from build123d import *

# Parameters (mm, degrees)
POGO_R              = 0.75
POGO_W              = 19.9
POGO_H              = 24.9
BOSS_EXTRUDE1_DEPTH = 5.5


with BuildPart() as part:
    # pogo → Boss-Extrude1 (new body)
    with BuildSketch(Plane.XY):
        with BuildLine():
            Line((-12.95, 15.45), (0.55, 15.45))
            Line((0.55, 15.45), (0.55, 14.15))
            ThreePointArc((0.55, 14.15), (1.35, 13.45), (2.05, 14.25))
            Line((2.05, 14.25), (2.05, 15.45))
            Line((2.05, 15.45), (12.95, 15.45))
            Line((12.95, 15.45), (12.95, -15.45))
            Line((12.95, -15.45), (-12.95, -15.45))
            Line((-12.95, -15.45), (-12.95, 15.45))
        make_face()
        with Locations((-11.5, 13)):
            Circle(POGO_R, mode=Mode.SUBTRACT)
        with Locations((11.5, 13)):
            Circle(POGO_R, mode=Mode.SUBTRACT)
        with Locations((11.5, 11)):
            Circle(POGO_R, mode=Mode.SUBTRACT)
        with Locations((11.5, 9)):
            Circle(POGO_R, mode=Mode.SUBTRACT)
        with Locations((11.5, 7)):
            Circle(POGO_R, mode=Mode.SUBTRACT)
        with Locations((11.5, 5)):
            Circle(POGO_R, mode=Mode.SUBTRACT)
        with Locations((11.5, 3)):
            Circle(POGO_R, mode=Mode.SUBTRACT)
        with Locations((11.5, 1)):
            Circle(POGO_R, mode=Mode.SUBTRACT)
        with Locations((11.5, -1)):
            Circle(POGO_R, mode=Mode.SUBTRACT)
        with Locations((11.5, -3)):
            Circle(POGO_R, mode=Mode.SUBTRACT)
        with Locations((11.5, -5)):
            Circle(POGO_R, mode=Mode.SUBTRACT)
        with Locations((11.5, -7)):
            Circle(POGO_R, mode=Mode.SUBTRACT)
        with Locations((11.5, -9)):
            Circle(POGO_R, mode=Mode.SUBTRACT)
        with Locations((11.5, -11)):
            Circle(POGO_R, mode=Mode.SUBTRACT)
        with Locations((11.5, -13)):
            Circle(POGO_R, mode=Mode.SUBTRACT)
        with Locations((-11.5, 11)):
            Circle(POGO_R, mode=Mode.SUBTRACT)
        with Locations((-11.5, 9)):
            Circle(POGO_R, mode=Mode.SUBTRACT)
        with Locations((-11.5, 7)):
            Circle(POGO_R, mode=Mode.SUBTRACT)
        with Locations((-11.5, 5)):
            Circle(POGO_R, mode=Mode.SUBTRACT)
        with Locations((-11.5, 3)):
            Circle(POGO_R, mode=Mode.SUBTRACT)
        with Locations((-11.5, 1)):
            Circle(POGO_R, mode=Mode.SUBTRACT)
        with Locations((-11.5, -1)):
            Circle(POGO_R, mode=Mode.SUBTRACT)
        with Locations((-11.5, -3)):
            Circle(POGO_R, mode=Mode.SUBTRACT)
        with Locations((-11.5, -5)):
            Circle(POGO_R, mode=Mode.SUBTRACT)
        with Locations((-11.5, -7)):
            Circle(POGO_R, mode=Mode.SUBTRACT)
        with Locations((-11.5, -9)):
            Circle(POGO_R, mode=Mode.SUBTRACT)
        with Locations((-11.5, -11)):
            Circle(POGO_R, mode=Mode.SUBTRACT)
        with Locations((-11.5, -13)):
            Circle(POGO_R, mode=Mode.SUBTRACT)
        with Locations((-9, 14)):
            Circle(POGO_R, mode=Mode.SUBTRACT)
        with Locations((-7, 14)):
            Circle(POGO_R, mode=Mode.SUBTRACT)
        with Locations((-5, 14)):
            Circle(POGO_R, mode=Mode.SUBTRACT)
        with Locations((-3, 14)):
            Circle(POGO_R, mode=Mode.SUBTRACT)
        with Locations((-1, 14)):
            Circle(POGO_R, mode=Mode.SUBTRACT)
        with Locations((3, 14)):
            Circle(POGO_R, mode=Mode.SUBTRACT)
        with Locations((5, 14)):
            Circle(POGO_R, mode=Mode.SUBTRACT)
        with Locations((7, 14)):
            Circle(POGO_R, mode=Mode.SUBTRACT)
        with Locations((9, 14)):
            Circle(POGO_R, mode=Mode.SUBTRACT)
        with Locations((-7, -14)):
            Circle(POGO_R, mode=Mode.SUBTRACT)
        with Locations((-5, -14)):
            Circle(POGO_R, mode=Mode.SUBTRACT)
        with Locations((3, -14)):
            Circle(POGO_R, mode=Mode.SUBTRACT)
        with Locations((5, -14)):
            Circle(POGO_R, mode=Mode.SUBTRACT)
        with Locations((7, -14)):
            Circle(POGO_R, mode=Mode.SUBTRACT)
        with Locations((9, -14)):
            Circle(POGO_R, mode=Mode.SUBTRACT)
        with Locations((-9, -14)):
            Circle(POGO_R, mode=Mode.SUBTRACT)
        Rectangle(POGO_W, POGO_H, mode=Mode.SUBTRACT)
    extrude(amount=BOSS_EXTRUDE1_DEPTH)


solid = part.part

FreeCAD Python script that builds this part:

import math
import FreeCAD as App
import Part
import Sketcher
from FreeCAD import Vector
Q = App.Units.Quantity


def add_polygon(sketch, points):
    """Adds a closed chain of lines whose ends are joined by coincident constraints."""
    first, n = sketch.GeometryCount, len(points)
    for a, b in zip(points, points[1:] + points[:1]):
        sketch.addGeometry(Part.LineSegment(App.Vector(*a, 0), App.Vector(*b, 0)), False)
    for i in range(n):
        sketch.addConstraint(Sketcher.Constraint("Coincident", first + i, 2, first + (i + 1) % n, 1))

doc = App.newDocument("Part")
body = doc.addObject("PartDesign::Body", "Body")

sketch1 = doc.addObject("Sketcher::SketchObject", "Sketch")
body.addObject(sketch1)
sketch1.AttachmentSupport = (doc.XY_Plane, [""])
sketch1.MapMode = "FlatFace"
sketch1.addGeometry(Part.LineSegment(Vector(0.55, 15.45, 0), Vector(-12.95, 15.45, 0)), False)
sketch1.addGeometry(Part.LineSegment(Vector(-12.95, 15.45, 0), Vector(-12.95, -15.45, 0)), False)
sketch1.addGeometry(Part.LineSegment(Vector(-12.95, -15.45, 0), Vector(12.95, -15.45, 0)), False)
sketch1.addGeometry(Part.LineSegment(Vector(12.95, -15.45, 0), Vector(12.95, 15.45, 0)), False)
sketch1.addGeometry(Part.LineSegment(Vector(12.95, 15.45, 0), Vector(2.05, 15.45, 0)), False)
sketch1.addGeometry(Part.LineSegment(Vector(2.05, 15.45, 0), Vector(2.05, 14.25, 0)), False)
sketch1.addGeometry(Part.ArcOfCircle(Part.Circle(Vector(1.3, 14.2, 0), Vector(0, 0, 1), 0.751665), math.radians(-176.185925), math.radians(3.814075)), False)
sketch1.addGeometry(Part.LineSegment(Vector(0.55, 14.15, 0), Vector(0.55, 15.45, 0)), False)
sketch1.addGeometry(Part.Circle(Vector(11.5, -13, 0), Vector(0, 0, 1), 0.75), False)
sketch1.addGeometry(Part.Circle(Vector(9, -14, 0), Vector(0, 0, 1), 0.75), False)
sketch1.addGeometry(Part.Circle(Vector(7, -14, 0), Vector(0, 0, 1), 0.75), False)
sketch1.addGeometry(Part.Circle(Vector(11.5, -11, 0), Vector(0, 0, 1), 0.75), False)
sketch1.addGeometry(Part.Circle(Vector(11.5, -9, 0), Vector(0, 0, 1), 0.75), False)
sketch1.addGeometry(Part.Circle(Vector(5, -14, 0), Vector(0, 0, 1), 0.75), False)
sketch1.addGeometry(Part.Circle(Vector(3, -14, 0), Vector(0, 0, 1), 0.75), False)
sketch1.addGeometry(Part.Circle(Vector(11.5, -7, 0), Vector(0, 0, 1), 0.75), False)
sketch1.addGeometry(Part.Circle(Vector(11.5, -5, 0), Vector(0, 0, 1), 0.75), False)
sketch1.addGeometry(Part.Circle(Vector(11.5, -3, 0), Vector(0, 0, 1), 0.75), False)
sketch1.addGeometry(Part.Circle(Vector(11.5, -1, 0), Vector(0, 0, 1), 0.75), False)
sketch1.addGeometry(Part.Circle(Vector(-5, -14, 0), Vector(0, 0, 1), 0.75), False)
sketch1.addGeometry(Part.Circle(Vector(-7, -14, 0), Vector(0, 0, 1), 0.75), False)
sketch1.addGeometry(Part.Circle(Vector(-9, -14, 0), Vector(0, 0, 1), 0.75), False)
sketch1.addGeometry(Part.Circle(Vector(-11.5, -13, 0), Vector(0, 0, 1), 0.75), False)
sketch1.addGeometry(Part.Circle(Vector(-11.5, -11, 0), Vector(0, 0, 1), 0.75), False)
sketch1.addGeometry(Part.Circle(Vector(-11.5, -9, 0), Vector(0, 0, 1), 0.75), False)
sketch1.addGeometry(Part.Circle(Vector(-11.5, -7, 0), Vector(0, 0, 1), 0.75), False)
sketch1.addGeometry(Part.Circle(Vector(-11.5, -5, 0), Vector(0, 0, 1), 0.75), False)
sketch1.addGeometry(Part.Circle(Vector(-11.5, -3, 0), Vector(0, 0, 1), 0.75), False)
sketch1.addGeometry(Part.Circle(Vector(-11.5, -1, 0), Vector(0, 0, 1), 0.75), False)
sketch1.addGeometry(Part.Circle(Vector(11.5, 1, 0), Vector(0, 0, 1), 0.75), False)
sketch1.addGeometry(Part.Circle(Vector(11.5, 3, 0), Vector(0, 0, 1), 0.75), False)
sketch1.addGeometry(Part.Circle(Vector(11.5, 5, 0), Vector(0, 0, 1), 0.75), False)
sketch1.addGeometry(Part.Circle(Vector(11.5, 7, 0), Vector(0, 0, 1), 0.75), False)
add_polygon(sketch1, [(-9.95, -12.45), (-9.95, 12.45), (9.95, 12.45), (9.95, -12.45)])
sketch1.addGeometry(Part.Circle(Vector(11.5, 9, 0), Vector(0, 0, 1), 0.75), False)
sketch1.addGeometry(Part.Circle(Vector(11.5, 11, 0), Vector(0, 0, 1), 0.75), False)
sketch1.addGeometry(Part.Circle(Vector(11.5, 13, 0), Vector(0, 0, 1), 0.75), False)
sketch1.addGeometry(Part.Circle(Vector(9, 14, 0), Vector(0, 0, 1), 0.75), False)
sketch1.addGeometry(Part.Circle(Vector(7, 14, 0), Vector(0, 0, 1), 0.75), False)
sketch1.addGeometry(Part.Circle(Vector(5, 14, 0), Vector(0, 0, 1), 0.75), False)
sketch1.addGeometry(Part.Circle(Vector(3, 14, 0), Vector(0, 0, 1), 0.75), False)
sketch1.addGeometry(Part.Circle(Vector(-11.5, 1, 0), Vector(0, 0, 1), 0.75), False)
sketch1.addGeometry(Part.Circle(Vector(-11.5, 3, 0), Vector(0, 0, 1), 0.75), False)
sketch1.addGeometry(Part.Circle(Vector(-11.5, 5, 0), Vector(0, 0, 1), 0.75), False)
sketch1.addGeometry(Part.Circle(Vector(-11.5, 7, 0), Vector(0, 0, 1), 0.75), False)
sketch1.addGeometry(Part.Circle(Vector(-1, 14, 0), Vector(0, 0, 1), 0.75), False)
sketch1.addGeometry(Part.Circle(Vector(-3, 14, 0), Vector(0, 0, 1), 0.75), False)
sketch1.addGeometry(Part.Circle(Vector(-5, 14, 0), Vector(0, 0, 1), 0.75), False)
sketch1.addGeometry(Part.Circle(Vector(-11.5, 9, 0), Vector(0, 0, 1), 0.75), False)
sketch1.addGeometry(Part.Circle(Vector(-11.5, 11, 0), Vector(0, 0, 1), 0.75), False)
sketch1.addGeometry(Part.Circle(Vector(-7, 14, 0), Vector(0, 0, 1), 0.75), False)
sketch1.addGeometry(Part.Circle(Vector(-9, 14, 0), Vector(0, 0, 1), 0.75), False)
sketch1.addGeometry(Part.Circle(Vector(-11.5, 13, 0), Vector(0, 0, 1), 0.75), False)
sketch1.addConstraint(Sketcher.Constraint("Coincident", 0, 2, 1, 1))
sketch1.addConstraint(Sketcher.Constraint("Coincident", 1, 2, 2, 1))
sketch1.addConstraint(Sketcher.Constraint("Coincident", 2, 2, 3, 1))
sketch1.addConstraint(Sketcher.Constraint("Coincident", 3, 2, 4, 1))
sketch1.addConstraint(Sketcher.Constraint("Coincident", 4, 2, 5, 1))
sketch1.addConstraint(Sketcher.Constraint("Coincident", 5, 2, 6, 2))
sketch1.addConstraint(Sketcher.Constraint("Coincident", 6, 1, 7, 1))
sketch1.addConstraint(Sketcher.Constraint("Coincident", 7, 2, 0, 1))
sketch1.addConstraint(Sketcher.Constraint("Horizontal", 0))
sketch1.addConstraint(Sketcher.Constraint("Vertical", 1))
sketch1.addConstraint(Sketcher.Constraint("Horizontal", 2))
sketch1.addConstraint(Sketcher.Constraint("Vertical", 3))
sketch1.addConstraint(Sketcher.Constraint("Horizontal", 4))
sketch1.addConstraint(Sketcher.Constraint("Vertical", 5))
sketch1.addConstraint(Sketcher.Constraint("Vertical", 7))
sketch1.addConstraint(Sketcher.Constraint("Vertical", 33))
sketch1.addConstraint(Sketcher.Constraint("Horizontal", 34))
sketch1.addConstraint(Sketcher.Constraint("Vertical", 35))
sketch1.addConstraint(Sketcher.Constraint("Horizontal", 36))
sketch1.addConstraint(Sketcher.Constraint("Equal", 8, 9))
sketch1.addConstraint(Sketcher.Constraint("Equal", 9, 10))
sketch1.addConstraint(Sketcher.Constraint("Equal", 10, 11))
sketch1.addConstraint(Sketcher.Constraint("Equal", 11, 12))
sketch1.addConstraint(Sketcher.Constraint("Equal", 12, 13))
sketch1.addConstraint(Sketcher.Constraint("Equal", 13, 14))
sketch1.addConstraint(Sketcher.Constraint("Equal", 14, 15))
sketch1.addConstraint(Sketcher.Constraint("Equal", 15, 16))
sketch1.addConstraint(Sketcher.Constraint("Equal", 16, 17))
sketch1.addConstraint(Sketcher.Constraint("Equal", 17, 18))
sketch1.addConstraint(Sketcher.Constraint("Equal", 18, 19))
sketch1.addConstraint(Sketcher.Constraint("Equal", 19, 20))
sketch1.addConstraint(Sketcher.Constraint("Equal", 20, 21))
sketch1.addConstraint(Sketcher.Constraint("Equal", 21, 22))
sketch1.addConstraint(Sketcher.Constraint("Equal", 22, 23))
sketch1.addConstraint(Sketcher.Constraint("Equal", 23, 24))
sketch1.addConstraint(Sketcher.Constraint("Equal", 24, 25))
sketch1.addConstraint(Sketcher.Constraint("Equal", 25, 26))
sketch1.addConstraint(Sketcher.Constraint("Equal", 26, 27))
sketch1.addConstraint(Sketcher.Constraint("Equal", 27, 28))
sketch1.addConstraint(Sketcher.Constraint("Equal", 28, 29))
sketch1.addConstraint(Sketcher.Constraint("Equal", 29, 30))
sketch1.addConstraint(Sketcher.Constraint("Equal", 30, 31))
sketch1.addConstraint(Sketcher.Constraint("Equal", 31, 32))
sketch1.addConstraint(Sketcher.Constraint("Equal", 32, 37))
sketch1.addConstraint(Sketcher.Constraint("Equal", 37, 38))
sketch1.addConstraint(Sketcher.Constraint("Equal", 38, 39))
sketch1.addConstraint(Sketcher.Constraint("Equal", 39, 40))
sketch1.addConstraint(Sketcher.Constraint("Equal", 40, 41))
sketch1.addConstraint(Sketcher.Constraint("Equal", 41, 42))
sketch1.addConstraint(Sketcher.Constraint("Equal", 42, 43))
sketch1.addConstraint(Sketcher.Constraint("Equal", 43, 44))
sketch1.addConstraint(Sketcher.Constraint("Equal", 44, 45))
sketch1.addConstraint(Sketcher.Constraint("Equal", 45, 46))
sketch1.addConstraint(Sketcher.Constraint("Equal", 46, 47))
sketch1.addConstraint(Sketcher.Constraint("Equal", 47, 48))
sketch1.addConstraint(Sketcher.Constraint("Equal", 48, 49))
sketch1.addConstraint(Sketcher.Constraint("Equal", 49, 50))
sketch1.addConstraint(Sketcher.Constraint("Equal", 50, 51))
sketch1.addConstraint(Sketcher.Constraint("Equal", 51, 52))
sketch1.addConstraint(Sketcher.Constraint("Equal", 52, 53))
sketch1.addConstraint(Sketcher.Constraint("Equal", 53, 54))
sketch1.addConstraint(Sketcher.Constraint("Equal", 54, 55))
sketch1.addConstraint(Sketcher.Constraint("Symmetric", 28, 3, 29, 3, -1, 1))
sketch1.addConstraint(Sketcher.Constraint("Symmetric", 27, 3, 30, 3, -1, 1))
sketch1.addConstraint(Sketcher.Constraint("Symmetric", 26, 3, 31, 3, -1, 1))
sketch1.addConstraint(Sketcher.Constraint("Symmetric", 25, 3, 32, 3, -1, 1))
sketch1.addConstraint(Sketcher.Constraint("Symmetric", 24, 3, 37, 3, -1, 1))
sketch1.addConstraint(Sketcher.Constraint("Symmetric", 23, 3, 38, 3, -1, 1))
sketch1.addConstraint(Sketcher.Constraint("Symmetric", 22, 3, 39, 3, -1, 1))
sketch1.addConstraint(Sketcher.Constraint("Symmetric", 21, 3, 40, 3, -1, 1))
sketch1.addConstraint(Sketcher.Constraint("Symmetric", 20, 3, 41, 3, -1, 1))
sketch1.addConstraint(Sketcher.Constraint("Symmetric", 19, 3, 42, 3, -1, 1))
sketch1.addConstraint(Sketcher.Constraint("Symmetric", 18, 3, 44, 3, -1, 1))
sketch1.addConstraint(Sketcher.Constraint("Symmetric", 17, 3, 45, 3, -1, 1))
sketch1.addConstraint(Sketcher.Constraint("Symmetric", 16, 3, 46, 3, -1, 1))
sketch1.addConstraint(Sketcher.Constraint("Symmetric", 15, 3, 47, 3, -1, 1))
sketch1.addConstraint(Sketcher.Constraint("Symmetric", 14, 3, 49, 3, -1, 1))
sketch1.addConstraint(Sketcher.Constraint("Symmetric", 13, 3, 50, 3, -1, 1))
sketch1.addConstraint(Sketcher.Constraint("Symmetric", 12, 3, 51, 3, -1, 1))
sketch1.addConstraint(Sketcher.Constraint("Symmetric", 11, 3, 52, 3, -1, 1))
sketch1.addConstraint(Sketcher.Constraint("Symmetric", 10, 3, 53, 3, -1, 1))
sketch1.addConstraint(Sketcher.Constraint("Symmetric", 9, 3, 54, 3, -1, 1))
sketch1.addConstraint(Sketcher.Constraint("Symmetric", 8, 3, 55, 3, -1, 1))
sketch1.addConstraint(Sketcher.Constraint("Symmetric", 0, 2, 2, 2, -1, 1))
sketch1.addConstraint(Sketcher.Constraint("Symmetric", 33, 2, 35, 2, -1, 1))
sketch1.addConstraint(Sketcher.Constraint("Symmetric", 13, 3, 19, 3, -2))
sketch1.addConstraint(Sketcher.Constraint("Symmetric", 10, 3, 20, 3, -2))
sketch1.addConstraint(Sketcher.Constraint("Symmetric", 9, 3, 21, 3, -2))
sketch1.addConstraint(Sketcher.Constraint("Symmetric", 8, 3, 22, 3, -2))
sketch1.addConstraint(Sketcher.Constraint("Symmetric", 11, 3, 23, 3, -2))
sketch1.addConstraint(Sketcher.Constraint("Symmetric", 12, 3, 24, 3, -2))
sketch1.addConstraint(Sketcher.Constraint("Symmetric", 15, 3, 25, 3, -2))
sketch1.addConstraint(Sketcher.Constraint("Symmetric", 16, 3, 26, 3, -2))
sketch1.addConstraint(Sketcher.Constraint("Symmetric", 17, 3, 27, 3, -2))
sketch1.addConstraint(Sketcher.Constraint("Symmetric", 18, 3, 28, 3, -2))
sketch1.addConstraint(Sketcher.Constraint("Symmetric", 43, 3, 49, 3, -2))
sketch1.addConstraint(Sketcher.Constraint("Horizontal", 9, 3, 10, 3))
sketch1.addConstraint(Sketcher.Constraint("Horizontal", 10, 3, 13, 3))
sketch1.addConstraint(Sketcher.Constraint("Horizontal", 13, 3, 14, 3))
sketch1.addConstraint(Sketcher.Constraint("Horizontal", 43, 3, 48, 3))
sketch1.addConstraint(Sketcher.Constraint("Horizontal", 0, 2, 3, 2))
sketch1.addConstraint(Sketcher.Constraint("Vertical", 8, 3, 11, 3))
sketch1.addConstraint(Sketcher.Constraint("Vertical", 11, 3, 12, 3))
sketch1.addConstraint(Sketcher.Constraint("Vertical", 12, 3, 15, 3))
sketch1.addConstraint(Sketcher.Constraint("Vertical", 15, 3, 16, 3))
sketch1.addConstraint(Sketcher.Constraint("Vertical", 16, 3, 17, 3))
sketch1.addConstraint(Sketcher.Constraint("Vertical", 17, 3, 18, 3))
sketch1.addConstraint(Sketcher.Constraint("Diameter", 8, Q("1.5 mm")))
sketch1.addConstraint(Sketcher.Constraint("DistanceX", 0, 2, 0, 1, Q("13.5 mm")))
sketch1.addConstraint(Sketcher.Constraint("DistanceX", 2, 1, 2, 2, Q("25.9 mm")))
sketch1.addConstraint(Sketcher.Constraint("DistanceX", 4, 2, 4, 1, Q("10.9 mm")))
sketch1.addConstraint(Sketcher.Constraint("DistanceX", 34, 1, 34, 2, Q("19.9 mm")))
sketch1.addConstraint(Sketcher.Constraint("DistanceY", 1, 2, 1, 1, Q("30.9 mm")))
sketch1.addConstraint(Sketcher.Constraint("DistanceY", 5, 2, 5, 1, Q("1.2 mm")))
sketch1.addConstraint(Sketcher.Constraint("DistanceY", 7, 1, 7, 2, Q("1.3 mm")))
sketch1.addConstraint(Sketcher.Constraint("DistanceY", 33, 1, 33, 2, Q("24.9 mm")))
sketch1.addConstraint(Sketcher.Constraint("DistanceY", 8, 3, -1, 1, Q("13 mm")))
sketch1.addConstraint(Sketcher.Constraint("DistanceX", -1, 1, 9, 3, Q("9 mm")))
sketch1.addConstraint(Sketcher.Constraint("DistanceY", 9, 3, -1, 1, Q("14 mm")))
sketch1.addConstraint(Sketcher.Constraint("DistanceX", -1, 1, 10, 3, Q("7 mm")))
sketch1.addConstraint(Sketcher.Constraint("DistanceY", 11, 3, -1, 1, Q("11 mm")))
sketch1.addConstraint(Sketcher.Constraint("DistanceY", 12, 3, -1, 1, Q("9 mm")))
sketch1.addConstraint(Sketcher.Constraint("DistanceX", -1, 1, 13, 3, Q("5 mm")))
sketch1.addConstraint(Sketcher.Constraint("DistanceX", -1, 1, 14, 3, Q("3 mm")))
sketch1.addConstraint(Sketcher.Constraint("DistanceY", 15, 3, -1, 1, Q("7 mm")))
sketch1.addConstraint(Sketcher.Constraint("DistanceY", 16, 3, -1, 1, Q("5 mm")))
sketch1.addConstraint(Sketcher.Constraint("DistanceY", 17, 3, -1, 1, Q("3 mm")))
sketch1.addConstraint(Sketcher.Constraint("DistanceY", 18, 3, -1, 1, Q("1 mm")))
sketch1.addConstraint(Sketcher.Constraint("DistanceX", 48, 3, -1, 1, Q("1 mm")))
sketch1.addConstraint(Sketcher.Constraint("DistanceX", -1, 1, 6, 3, Q("1.3 mm")))
sketch1.addConstraint(Sketcher.Constraint("DistanceX", -1, 1, 8, 3, Q("11.5 mm")))
pad1 = doc.addObject("PartDesign::Pad", "Pad")
body.addObject(pad1)
pad1.Profile = sketch1
pad1.Length = 5.5

doc.recompute()
